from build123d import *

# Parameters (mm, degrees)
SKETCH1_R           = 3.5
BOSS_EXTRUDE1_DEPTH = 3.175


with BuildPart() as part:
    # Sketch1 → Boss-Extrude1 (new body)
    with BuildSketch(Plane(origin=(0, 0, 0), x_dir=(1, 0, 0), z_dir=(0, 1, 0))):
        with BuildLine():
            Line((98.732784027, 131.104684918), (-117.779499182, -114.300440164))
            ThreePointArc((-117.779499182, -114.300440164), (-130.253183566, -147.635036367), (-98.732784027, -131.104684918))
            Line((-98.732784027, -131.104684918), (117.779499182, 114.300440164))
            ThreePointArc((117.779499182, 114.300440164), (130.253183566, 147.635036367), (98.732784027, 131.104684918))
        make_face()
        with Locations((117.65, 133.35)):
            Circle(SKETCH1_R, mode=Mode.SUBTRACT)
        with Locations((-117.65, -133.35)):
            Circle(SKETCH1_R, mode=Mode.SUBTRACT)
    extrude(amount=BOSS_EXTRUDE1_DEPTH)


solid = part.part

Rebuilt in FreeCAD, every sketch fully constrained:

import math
import FreeCAD as App
import Part
import Sketcher
Q = App.Units.Quantity

doc = App.newDocument("Part")
body = doc.addObject("PartDesign::Body", "Body")

sketch1 = body.newObject("Sketcher::SketchObject", "Sketch")
sketch1.AttachmentSupport = (doc.getObject("XZ_Plane"), [""])
sketch1.MapMode = "FlatFace"
sketch1.addGeometry(Part.LineSegment(App.Vector(98.7, -131.1, 0), App.Vector(-117.8, 114.3, 0)), False)
sketch1.addGeometry(Part.ArcOfCircle(Part.Circle(App.Vector(-117.7, 133.3, 0), App.Vector(0, 0, 1), 19.1), math.radians(-7), math.radians(270)), False)
sketch1.addGeometry(Part.LineSegment(App.Vector(-98.7, 131.1, 0), App.Vector(117.8, -114.3, 0)), False)
sketch1.addGeometry(Part.ArcOfCircle(Part.Circle(App.Vector(117.7, -133.3, 0), App.Vector(0, 0, 1), 19.1), math.radians(173), math.radians(450)), False)
sketch1.addGeometry(Part.Circle(App.Vector(-117.7, 133.3, 0), App.Vector(0, 0, 1), 3.5), False)
sketch1.addGeometry(Part.Circle(App.Vector(117.7, -133.3, 0), App.Vector(0, 0, 1), 3.5), False)
sketch1.addConstraint(Sketcher.Constraint("Coincident", 0, 2, 1, 2))
sketch1.addConstraint(Sketcher.Constraint("Coincident", 1, 1, 2, 1))
sketch1.addConstraint(Sketcher.Constraint("Coincident", 2, 2, 3, 2))
sketch1.addConstraint(Sketcher.Constraint("Coincident", 3, 1, 0, 1))
sketch1.addConstraint(Sketcher.Constraint("Coincident", 4, 3, 1, 3))
sketch1.addConstraint(Sketcher.Constraint("Coincident", 5, 3, 3, 3))
sketch1.addConstraint(Sketcher.Constraint("Equal", 1, 3))
sketch1.addConstraint(Sketcher.Constraint("Equal", 4, 5))
sketch1.addConstraint(Sketcher.Constraint("Symmetric", 1, 3, 3, 3, -1, 1))
sketch1.addConstraint(Sketcher.Constraint("Parallel", 0, 2))
sketch1.addConstraint(Sketcher.Constraint("Equal", 0, 2))
sketch1.addConstraint(Sketcher.Constraint("Radius", 1, Q("0.75 in")))
sketch1.addConstraint(Sketcher.Constraint("DistanceY", 3, 3, 1, 3, Q("10.5 in")))
sketch1.addConstraint(Sketcher.Constraint("Diameter", 4, 7.0))
sketch1.addConstraint(Sketcher.Constraint("DistanceX", 1, 3, -1, 1, 117.65))
sketch1.addConstraint(Sketcher.Constraint("DistanceX", 0, 2, -1, 1, 117.779499))
sketch1.addConstraint(Sketcher.Constraint("DistanceX", 1, 1, 3, 1, 197.465568))
pad1 = body.newObject("PartDesign::Pad", "Pad")
pad1.Profile = sketch1
pad1.Length = Q("0.125 in")
pad1.Reversed = True

doc.recompute()
